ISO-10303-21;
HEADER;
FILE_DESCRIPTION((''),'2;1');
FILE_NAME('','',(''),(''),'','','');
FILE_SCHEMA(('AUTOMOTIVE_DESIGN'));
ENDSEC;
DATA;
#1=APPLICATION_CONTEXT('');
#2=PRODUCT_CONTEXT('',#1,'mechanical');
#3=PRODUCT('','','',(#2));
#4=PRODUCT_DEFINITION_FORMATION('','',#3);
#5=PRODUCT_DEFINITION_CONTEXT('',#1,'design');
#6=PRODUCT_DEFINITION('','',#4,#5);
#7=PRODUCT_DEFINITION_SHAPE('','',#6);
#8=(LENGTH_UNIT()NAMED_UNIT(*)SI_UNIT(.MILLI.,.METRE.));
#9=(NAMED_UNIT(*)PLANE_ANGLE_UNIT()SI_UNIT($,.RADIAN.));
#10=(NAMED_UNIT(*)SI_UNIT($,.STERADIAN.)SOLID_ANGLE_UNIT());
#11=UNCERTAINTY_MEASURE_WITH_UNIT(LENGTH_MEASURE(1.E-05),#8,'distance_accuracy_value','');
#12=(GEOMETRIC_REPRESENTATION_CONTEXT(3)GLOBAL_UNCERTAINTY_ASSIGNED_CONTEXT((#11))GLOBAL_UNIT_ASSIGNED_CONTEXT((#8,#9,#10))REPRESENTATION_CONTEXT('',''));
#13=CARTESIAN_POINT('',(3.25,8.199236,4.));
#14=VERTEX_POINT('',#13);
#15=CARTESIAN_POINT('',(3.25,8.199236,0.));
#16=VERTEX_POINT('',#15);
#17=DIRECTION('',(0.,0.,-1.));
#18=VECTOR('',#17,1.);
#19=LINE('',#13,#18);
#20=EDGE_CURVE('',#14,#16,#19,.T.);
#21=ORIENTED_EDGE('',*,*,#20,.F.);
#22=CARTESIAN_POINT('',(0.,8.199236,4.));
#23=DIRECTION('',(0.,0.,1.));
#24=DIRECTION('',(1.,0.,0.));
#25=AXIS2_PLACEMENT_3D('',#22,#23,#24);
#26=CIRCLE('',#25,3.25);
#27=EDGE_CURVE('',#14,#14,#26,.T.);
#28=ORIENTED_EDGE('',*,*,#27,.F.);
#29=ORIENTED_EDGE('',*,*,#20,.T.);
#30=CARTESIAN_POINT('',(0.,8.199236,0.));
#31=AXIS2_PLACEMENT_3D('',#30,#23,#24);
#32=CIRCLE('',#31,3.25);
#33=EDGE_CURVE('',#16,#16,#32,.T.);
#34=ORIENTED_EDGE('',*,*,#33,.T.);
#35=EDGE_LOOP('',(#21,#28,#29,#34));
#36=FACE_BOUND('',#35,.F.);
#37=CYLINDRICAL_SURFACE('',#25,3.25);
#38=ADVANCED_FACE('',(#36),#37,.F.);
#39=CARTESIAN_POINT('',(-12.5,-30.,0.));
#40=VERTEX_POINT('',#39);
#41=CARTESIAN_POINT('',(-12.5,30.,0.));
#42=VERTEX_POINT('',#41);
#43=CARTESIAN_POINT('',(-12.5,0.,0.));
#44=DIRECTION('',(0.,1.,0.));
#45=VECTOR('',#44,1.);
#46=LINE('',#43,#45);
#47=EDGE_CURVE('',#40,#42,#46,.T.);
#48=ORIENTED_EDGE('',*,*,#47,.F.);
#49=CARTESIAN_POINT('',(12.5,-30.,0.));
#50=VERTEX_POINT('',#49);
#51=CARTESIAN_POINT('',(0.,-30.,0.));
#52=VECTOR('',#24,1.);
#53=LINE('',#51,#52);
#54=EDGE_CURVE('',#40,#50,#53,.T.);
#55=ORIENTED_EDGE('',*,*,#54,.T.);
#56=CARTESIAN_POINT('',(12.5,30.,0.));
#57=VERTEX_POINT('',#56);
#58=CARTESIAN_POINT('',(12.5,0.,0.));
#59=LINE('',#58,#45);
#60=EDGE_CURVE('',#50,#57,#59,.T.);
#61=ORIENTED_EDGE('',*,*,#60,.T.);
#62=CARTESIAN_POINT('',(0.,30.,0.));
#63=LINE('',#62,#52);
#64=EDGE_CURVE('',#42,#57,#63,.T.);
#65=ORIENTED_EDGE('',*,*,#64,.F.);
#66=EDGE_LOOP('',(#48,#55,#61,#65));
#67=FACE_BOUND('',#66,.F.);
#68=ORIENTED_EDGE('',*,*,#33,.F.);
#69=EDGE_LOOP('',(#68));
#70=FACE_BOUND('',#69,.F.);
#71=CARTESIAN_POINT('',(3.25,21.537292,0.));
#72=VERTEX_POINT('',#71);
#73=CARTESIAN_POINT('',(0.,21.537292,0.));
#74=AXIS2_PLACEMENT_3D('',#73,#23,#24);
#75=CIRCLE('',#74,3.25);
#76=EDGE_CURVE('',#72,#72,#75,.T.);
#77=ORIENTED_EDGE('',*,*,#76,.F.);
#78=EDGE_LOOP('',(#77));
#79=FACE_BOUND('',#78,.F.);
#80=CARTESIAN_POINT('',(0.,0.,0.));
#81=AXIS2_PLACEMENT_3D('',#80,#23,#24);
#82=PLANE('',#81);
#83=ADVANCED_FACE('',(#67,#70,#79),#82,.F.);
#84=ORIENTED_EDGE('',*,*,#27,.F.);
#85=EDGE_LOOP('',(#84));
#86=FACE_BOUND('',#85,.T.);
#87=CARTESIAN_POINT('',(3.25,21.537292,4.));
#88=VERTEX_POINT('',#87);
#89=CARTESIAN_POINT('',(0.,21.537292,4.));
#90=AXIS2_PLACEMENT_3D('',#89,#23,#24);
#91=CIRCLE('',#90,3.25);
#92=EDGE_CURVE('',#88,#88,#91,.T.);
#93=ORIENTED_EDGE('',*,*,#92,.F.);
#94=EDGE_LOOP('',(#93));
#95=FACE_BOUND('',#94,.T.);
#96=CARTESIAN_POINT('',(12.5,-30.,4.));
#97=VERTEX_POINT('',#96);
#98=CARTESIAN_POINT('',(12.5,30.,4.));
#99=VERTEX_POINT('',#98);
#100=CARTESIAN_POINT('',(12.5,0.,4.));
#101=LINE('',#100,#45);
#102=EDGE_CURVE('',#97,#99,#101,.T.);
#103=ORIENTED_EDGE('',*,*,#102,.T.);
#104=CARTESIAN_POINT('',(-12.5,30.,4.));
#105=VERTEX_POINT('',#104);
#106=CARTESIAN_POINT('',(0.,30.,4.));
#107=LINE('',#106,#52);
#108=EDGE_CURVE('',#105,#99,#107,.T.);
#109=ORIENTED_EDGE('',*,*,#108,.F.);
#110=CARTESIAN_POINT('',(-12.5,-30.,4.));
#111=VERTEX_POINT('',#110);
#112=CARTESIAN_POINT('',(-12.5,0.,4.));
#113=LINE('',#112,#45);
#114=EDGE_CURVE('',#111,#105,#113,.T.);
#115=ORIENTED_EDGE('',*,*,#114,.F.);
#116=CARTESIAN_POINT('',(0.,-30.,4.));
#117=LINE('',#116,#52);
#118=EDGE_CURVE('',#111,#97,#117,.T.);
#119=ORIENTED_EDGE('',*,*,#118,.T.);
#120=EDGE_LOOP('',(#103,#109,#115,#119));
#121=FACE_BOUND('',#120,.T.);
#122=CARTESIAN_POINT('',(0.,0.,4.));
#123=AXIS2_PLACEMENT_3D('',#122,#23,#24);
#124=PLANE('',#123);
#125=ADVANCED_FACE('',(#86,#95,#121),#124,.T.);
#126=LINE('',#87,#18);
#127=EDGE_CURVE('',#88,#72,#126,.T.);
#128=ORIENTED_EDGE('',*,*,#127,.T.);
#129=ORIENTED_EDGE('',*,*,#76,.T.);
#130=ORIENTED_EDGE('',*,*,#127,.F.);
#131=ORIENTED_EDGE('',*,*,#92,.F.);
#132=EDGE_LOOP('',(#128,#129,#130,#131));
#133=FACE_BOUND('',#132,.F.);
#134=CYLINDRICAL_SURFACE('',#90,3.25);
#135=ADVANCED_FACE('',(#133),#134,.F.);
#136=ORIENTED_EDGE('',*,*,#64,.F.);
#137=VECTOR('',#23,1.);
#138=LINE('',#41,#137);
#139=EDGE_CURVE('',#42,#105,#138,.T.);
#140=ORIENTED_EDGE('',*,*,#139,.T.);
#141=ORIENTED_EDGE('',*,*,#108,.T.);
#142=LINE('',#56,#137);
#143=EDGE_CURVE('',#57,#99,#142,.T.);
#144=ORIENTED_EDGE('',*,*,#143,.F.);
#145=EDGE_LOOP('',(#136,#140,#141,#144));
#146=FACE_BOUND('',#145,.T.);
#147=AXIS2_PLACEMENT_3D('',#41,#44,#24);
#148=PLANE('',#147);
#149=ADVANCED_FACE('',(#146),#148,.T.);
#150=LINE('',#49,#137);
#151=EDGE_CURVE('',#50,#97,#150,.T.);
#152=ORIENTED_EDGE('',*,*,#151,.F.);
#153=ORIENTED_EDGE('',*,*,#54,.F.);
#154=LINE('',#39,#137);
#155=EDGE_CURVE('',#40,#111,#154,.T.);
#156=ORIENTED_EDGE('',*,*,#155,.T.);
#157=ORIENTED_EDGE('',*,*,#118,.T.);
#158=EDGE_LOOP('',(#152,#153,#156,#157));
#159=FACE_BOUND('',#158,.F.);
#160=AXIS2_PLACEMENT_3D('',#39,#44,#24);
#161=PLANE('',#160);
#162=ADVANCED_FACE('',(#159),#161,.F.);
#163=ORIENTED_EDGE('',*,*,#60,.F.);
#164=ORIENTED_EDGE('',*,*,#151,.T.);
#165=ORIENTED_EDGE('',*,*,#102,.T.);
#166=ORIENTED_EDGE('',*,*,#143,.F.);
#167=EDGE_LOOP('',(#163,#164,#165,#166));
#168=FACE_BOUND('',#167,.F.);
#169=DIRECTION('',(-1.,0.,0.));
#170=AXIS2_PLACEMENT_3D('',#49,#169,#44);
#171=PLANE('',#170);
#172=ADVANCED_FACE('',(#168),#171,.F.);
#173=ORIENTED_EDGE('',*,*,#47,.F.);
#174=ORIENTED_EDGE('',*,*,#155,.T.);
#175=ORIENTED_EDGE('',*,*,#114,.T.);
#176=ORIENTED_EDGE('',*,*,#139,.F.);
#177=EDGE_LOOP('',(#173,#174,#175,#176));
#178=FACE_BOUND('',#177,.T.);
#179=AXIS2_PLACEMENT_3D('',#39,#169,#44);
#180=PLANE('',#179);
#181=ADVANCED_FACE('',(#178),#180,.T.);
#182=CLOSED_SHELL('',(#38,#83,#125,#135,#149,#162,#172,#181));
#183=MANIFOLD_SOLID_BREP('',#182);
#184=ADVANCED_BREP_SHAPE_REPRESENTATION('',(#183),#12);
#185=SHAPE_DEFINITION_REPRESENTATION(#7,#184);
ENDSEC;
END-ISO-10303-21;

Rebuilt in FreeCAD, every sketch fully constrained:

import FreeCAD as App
import Part
import Sketcher


def add_polygon(sketch, points):
    """Adds a closed chain of lines whose ends are joined by coincident constraints."""
    first, n = sketch.GeometryCount, len(points)
    for a, b in zip(points, points[1:] + points[:1]):
        sketch.addGeometry(Part.LineSegment(App.Vector(*a, 0), App.Vector(*b, 0)), False)
    for i in range(n):
        sketch.addConstraint(Sketcher.Constraint("Coincident", first + i, 2, first + (i + 1) % n, 1))

doc = App.newDocument("Part")
body = doc.addObject("PartDesign::Body", "Body")

# Sketch on XY plane
sketch1 = body.newObject("Sketcher::SketchObject", "Sketch")
sketch1.AttachmentSupport = (doc.getObject("XY_Plane"), [""])
sketch1.MapMode = "FlatFace"
add_polygon(sketch1, [(-12, 30), (-12, -30), (12, -30), (12, 30)])  # lines 0-3
sketch1.addConstraint(Sketcher.Constraint("Vertical", 0))
sketch1.addConstraint(Sketcher.Constraint("Horizontal", 1))
sketch1.addConstraint(Sketcher.Constraint("Vertical", 2))
sketch1.addConstraint(Sketcher.Constraint("Horizontal", 3))
sketch1.addConstraint(Sketcher.Constraint("Symmetric", 0, 2, 2, 2, -1, 1))
sketch1.addConstraint(Sketcher.Constraint("DistanceX", 1, 1, 1, 2, 25.0))
sketch1.addConstraint(Sketcher.Constraint("DistanceY", 0, 2, 0, 1, 60.0))
pad1 = body.newObject("PartDesign::Pad", "Pad")
pad1.Profile = sketch1
pad1.Length = 4

# Sketch on XY plane
sketch2 = body.newObject("Sketcher::SketchObject", "Sketch001")
sketch2.AttachmentSupport = (doc.getObject("XY_Plane"), [""])
sketch2.MapMode = "FlatFace"
sketch2.AttachmentOffset = App.Placement(App.Vector(0, 0, 4), App.Rotation())
sketch2.addGeometry(Part.Circle(App.Vector(0, 21.5, 0), App.Vector(0, 0, 1), 3.2), False)
sketch2.addGeometry(Part.Circle(App.Vector(0, 8.2, 0), App.Vector(0, 0, 1), 3.2), False)
sketch2.addConstraint(Sketcher.Constraint("Equal", 0, 1))
sketch2.addConstraint(Sketcher.Constraint("PointOnObject", 0, 3, -2))
sketch2.addConstraint(Sketcher.Constraint("PointOnObject", 1, 3, -2))
sketch2.addConstraint(Sketcher.Constraint("Diameter", 0, 6.5))
sketch2.addConstraint(Sketcher.Constraint("DistanceY", -1, 1, 0, 3, 21.537292))
sketch2.addConstraint(Sketcher.Constraint("DistanceY", -1, 1, 1, 3, 8.199236))
pocket1 = body.newObject("PartDesign::Pocket", "Pocket")
pocket1.Profile = sketch2
pocket1.Length = 5

doc.recompute()
